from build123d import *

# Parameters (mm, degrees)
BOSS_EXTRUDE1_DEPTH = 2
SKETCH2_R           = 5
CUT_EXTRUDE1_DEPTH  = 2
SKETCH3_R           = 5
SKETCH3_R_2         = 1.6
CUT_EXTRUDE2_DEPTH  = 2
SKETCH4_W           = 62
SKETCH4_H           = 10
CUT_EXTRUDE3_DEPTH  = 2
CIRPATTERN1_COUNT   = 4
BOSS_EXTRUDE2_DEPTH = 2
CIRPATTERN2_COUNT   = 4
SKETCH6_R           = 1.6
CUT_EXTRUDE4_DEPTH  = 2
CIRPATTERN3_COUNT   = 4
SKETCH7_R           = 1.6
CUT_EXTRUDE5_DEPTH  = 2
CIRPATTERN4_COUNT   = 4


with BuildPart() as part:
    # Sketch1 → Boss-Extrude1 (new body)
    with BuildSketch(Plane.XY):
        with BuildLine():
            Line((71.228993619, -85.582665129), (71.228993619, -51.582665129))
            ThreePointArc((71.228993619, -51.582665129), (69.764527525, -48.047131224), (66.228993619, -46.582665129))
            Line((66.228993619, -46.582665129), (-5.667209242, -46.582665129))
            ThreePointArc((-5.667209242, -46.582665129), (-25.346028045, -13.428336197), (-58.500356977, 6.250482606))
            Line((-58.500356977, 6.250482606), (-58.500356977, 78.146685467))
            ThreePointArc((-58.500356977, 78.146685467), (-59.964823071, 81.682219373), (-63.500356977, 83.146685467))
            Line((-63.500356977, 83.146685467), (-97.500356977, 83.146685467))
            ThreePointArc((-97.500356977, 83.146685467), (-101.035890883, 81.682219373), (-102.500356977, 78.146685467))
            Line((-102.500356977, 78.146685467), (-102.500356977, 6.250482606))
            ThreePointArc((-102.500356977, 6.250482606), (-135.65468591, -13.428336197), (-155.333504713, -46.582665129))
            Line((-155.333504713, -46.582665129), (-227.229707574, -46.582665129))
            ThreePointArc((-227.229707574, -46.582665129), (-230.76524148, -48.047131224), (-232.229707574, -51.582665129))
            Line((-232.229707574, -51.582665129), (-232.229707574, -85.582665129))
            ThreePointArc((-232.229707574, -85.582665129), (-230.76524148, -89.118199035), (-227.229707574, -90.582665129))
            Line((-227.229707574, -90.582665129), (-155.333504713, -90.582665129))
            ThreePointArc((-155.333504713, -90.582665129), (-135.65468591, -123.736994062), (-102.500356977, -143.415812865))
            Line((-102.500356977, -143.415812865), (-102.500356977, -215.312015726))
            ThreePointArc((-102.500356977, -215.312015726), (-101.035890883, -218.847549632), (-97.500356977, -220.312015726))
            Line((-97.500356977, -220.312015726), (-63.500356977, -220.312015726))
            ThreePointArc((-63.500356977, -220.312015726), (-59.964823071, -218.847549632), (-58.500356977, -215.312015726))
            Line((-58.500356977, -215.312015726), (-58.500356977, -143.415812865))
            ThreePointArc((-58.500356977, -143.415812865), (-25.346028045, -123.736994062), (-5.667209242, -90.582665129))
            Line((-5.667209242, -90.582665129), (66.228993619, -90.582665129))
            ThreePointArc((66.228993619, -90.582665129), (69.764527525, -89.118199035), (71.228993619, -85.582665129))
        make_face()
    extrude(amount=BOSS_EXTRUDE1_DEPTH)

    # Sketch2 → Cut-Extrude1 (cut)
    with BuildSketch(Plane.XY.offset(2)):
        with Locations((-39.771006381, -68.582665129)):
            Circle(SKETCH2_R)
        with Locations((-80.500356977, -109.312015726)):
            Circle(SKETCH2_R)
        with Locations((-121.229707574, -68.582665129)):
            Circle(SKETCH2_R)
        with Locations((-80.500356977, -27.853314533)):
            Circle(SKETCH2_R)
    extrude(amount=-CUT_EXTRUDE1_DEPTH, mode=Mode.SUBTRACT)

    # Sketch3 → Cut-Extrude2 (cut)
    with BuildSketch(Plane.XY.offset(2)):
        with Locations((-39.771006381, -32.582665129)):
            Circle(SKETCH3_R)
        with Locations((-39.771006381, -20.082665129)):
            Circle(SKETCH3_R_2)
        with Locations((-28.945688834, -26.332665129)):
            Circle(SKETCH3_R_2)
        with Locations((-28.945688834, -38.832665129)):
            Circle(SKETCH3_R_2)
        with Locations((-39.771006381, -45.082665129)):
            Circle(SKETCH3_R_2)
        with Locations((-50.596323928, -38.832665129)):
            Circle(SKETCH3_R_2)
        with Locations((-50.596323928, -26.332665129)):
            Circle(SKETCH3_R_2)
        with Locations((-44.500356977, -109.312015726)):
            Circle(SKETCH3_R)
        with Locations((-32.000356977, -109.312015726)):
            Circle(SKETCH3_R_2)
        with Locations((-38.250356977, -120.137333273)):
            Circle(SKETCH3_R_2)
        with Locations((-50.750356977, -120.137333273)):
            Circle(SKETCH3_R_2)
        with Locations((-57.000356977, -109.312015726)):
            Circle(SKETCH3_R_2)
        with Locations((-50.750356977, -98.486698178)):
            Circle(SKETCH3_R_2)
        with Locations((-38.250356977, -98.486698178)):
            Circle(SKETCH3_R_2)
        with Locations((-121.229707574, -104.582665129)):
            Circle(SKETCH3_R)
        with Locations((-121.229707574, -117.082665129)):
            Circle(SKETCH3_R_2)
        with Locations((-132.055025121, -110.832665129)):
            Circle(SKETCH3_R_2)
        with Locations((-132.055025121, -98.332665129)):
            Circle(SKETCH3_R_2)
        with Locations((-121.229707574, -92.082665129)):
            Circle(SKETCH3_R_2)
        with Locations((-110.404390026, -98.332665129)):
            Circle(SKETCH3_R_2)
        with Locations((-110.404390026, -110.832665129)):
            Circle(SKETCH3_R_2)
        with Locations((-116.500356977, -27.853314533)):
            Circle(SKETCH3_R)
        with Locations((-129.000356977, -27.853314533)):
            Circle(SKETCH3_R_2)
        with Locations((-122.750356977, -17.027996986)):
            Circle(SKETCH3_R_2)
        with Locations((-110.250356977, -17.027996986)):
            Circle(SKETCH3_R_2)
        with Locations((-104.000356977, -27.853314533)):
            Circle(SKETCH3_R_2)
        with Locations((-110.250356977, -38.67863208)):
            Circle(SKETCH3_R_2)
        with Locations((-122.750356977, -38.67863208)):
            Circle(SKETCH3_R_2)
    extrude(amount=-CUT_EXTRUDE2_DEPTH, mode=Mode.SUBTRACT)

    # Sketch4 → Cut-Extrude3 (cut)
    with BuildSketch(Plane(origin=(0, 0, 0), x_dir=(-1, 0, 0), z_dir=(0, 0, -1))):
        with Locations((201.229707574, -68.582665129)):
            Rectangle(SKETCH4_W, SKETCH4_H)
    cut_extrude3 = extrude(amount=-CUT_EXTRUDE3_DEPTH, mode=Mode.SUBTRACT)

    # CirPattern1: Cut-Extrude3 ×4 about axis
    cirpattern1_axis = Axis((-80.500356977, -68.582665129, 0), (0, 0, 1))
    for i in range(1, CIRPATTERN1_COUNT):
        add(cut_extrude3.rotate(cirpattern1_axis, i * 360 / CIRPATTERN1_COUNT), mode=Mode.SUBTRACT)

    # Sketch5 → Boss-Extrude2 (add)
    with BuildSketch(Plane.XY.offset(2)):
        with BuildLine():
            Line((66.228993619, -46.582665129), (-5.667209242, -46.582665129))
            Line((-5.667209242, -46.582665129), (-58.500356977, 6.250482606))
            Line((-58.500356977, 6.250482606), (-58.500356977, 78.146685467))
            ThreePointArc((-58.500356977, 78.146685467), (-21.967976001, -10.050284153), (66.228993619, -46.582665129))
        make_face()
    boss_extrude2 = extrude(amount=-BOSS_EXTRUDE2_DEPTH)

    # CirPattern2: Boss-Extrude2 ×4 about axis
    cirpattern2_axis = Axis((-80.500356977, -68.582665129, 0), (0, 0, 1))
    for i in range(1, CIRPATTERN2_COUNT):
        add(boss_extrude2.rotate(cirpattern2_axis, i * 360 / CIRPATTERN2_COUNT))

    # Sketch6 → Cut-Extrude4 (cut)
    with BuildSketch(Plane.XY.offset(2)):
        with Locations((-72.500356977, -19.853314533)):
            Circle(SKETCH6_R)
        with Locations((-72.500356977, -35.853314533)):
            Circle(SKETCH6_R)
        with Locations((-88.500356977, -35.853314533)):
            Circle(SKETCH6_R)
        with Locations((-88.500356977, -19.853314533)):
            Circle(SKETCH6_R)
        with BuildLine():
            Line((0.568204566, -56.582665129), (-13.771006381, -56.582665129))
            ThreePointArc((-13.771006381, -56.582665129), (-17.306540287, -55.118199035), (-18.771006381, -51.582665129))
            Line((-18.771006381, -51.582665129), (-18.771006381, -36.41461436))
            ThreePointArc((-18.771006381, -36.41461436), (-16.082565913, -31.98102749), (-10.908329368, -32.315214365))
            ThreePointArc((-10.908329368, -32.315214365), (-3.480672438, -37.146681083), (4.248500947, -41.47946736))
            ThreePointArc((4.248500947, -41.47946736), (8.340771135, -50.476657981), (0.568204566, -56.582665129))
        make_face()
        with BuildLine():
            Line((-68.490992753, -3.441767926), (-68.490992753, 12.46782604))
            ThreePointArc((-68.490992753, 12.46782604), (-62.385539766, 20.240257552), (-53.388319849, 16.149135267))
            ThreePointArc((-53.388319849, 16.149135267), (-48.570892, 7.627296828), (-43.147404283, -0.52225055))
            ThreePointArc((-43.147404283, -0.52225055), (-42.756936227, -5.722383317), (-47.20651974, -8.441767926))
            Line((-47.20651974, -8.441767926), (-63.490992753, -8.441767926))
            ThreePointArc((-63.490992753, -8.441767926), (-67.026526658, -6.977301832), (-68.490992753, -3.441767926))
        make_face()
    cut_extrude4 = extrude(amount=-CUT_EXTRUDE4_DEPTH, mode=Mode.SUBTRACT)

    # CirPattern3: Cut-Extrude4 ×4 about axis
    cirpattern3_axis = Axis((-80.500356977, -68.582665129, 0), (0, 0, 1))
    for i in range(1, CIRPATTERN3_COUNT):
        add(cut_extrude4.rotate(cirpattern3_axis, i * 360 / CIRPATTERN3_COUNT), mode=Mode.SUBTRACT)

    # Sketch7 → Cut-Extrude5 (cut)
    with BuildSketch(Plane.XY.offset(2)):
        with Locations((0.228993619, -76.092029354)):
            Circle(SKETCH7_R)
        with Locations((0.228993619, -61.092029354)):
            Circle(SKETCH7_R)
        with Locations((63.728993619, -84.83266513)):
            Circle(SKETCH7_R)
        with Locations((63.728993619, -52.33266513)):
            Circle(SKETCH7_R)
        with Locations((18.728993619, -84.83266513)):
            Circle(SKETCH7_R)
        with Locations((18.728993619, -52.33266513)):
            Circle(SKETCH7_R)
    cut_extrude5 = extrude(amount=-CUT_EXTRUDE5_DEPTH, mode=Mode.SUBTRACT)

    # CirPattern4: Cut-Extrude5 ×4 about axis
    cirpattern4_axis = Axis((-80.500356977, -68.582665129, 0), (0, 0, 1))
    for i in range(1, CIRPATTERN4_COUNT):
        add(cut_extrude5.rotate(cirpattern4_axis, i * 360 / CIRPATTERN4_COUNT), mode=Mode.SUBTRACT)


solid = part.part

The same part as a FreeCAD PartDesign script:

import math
import FreeCAD as App
import Part
import Sketcher

V = App.Vector
Q = App.Units.Quantity


def add_polygon(sketch, points):
    """Adds a closed chain of lines whose ends are joined by coincident constraints."""
    first, n = sketch.GeometryCount, len(points)
    for a, b in zip(points, points[1:] + points[:1]):
        sketch.addGeometry(Part.LineSegment(App.Vector(*a, 0), App.Vector(*b, 0)), False)
    for i in range(n):
        sketch.addConstraint(Sketcher.Constraint("Coincident", first + i, 2, first + (i + 1) % n, 1))

doc = App.newDocument("Part")
params = doc.addObject("Spreadsheet::Sheet", "Params")
for row, (alias, value) in enumerate([
    ("sketch1_radius", "5 mm"),
    ("sketch1_radius2", "78 mm"),
    ("sketch1_width", "34 mm"),
    ("pad1_length", "2 mm"),
    ("sketch2_diameter", "10 mm"),
    ("pocket1_length", "2 mm"),
    ("sketch3_diameter", "10 mm"),
    ("sketch3_diameter2", "3.2 mm"),
    ("pocket2_length", "2 mm"),
    ("sketch4_width", "62 mm"),
    ("sketch4_height", "10 mm"),
    ("pocket3_length", "2 mm"),
    ("pad2_length", "2 mm"),
    ("sketch6_radius", "8 mm"),
    ("sketch6_radius2", "5 mm"),
    ("sketch6_diameter", "3.2 mm"),
    ("pocket4_length", "2 mm"),
    ("sketch7_diameter", "3.2 mm"),
    ("pocket5_length", "2 mm"),
], start=1):
    params.set(f"A{row}", alias)
    params.set(f"B{row}", "=" + value)
    params.setAlias(f"B{row}", alias)

body = doc.addObject("PartDesign::Body", "Body")

sketch1 = doc.addObject("Sketcher::SketchObject", "Sketch")
body.addObject(sketch1)
sketch1.AttachmentSupport = (doc.XY_Plane, [""])
sketch1.MapMode = "FlatFace"
sketch1.addGeometry(Part.LineSegment(V(71, -86, 0), V(71, -52, 0)), False)
sketch1.addGeometry(Part.ArcOfCircle(Part.Circle(V(66, -52, 0), V(0, 0, 1), 5), math.radians(0), math.radians(90)), False)
sketch1.addGeometry(Part.LineSegment(V(66, -47, 0), V(-6, -47, 0)), False)
sketch1.addGeometry(Part.ArcOfCircle(Part.Circle(V(-81, -69, 0), V(0, 0, 1), 78), math.radians(16), math.radians(74)), False)
sketch1.addGeometry(Part.LineSegment(V(-59, 6, 0), V(-59, 78, 0)), False)
sketch1.addGeometry(Part.ArcOfCircle(Part.Circle(V(-64, 78, 0), V(0, 0, 1), 5), math.radians(0), math.radians(90)), False)
sketch1.addGeometry(Part.LineSegment(V(-64, 83, 0), V(-98, 83, 0)), False)
sketch1.addGeometry(Part.ArcOfCircle(Part.Circle(V(-98, 78, 0), V(0, 0, 1), 5), math.radians(90), math.radians(180)), False)
sketch1.addGeometry(Part.LineSegment(V(-103, 78, 0), V(-103, 6, 0)), False)
sketch1.addGeometry(Part.ArcOfCircle(Part.Circle(V(-81, -69, 0), V(0, 0, 1), 78), math.radians(106), math.radians(164)), False)
sketch1.addGeometry(Part.LineSegment(V(-155, -47, 0), V(-227, -47, 0)), False)
sketch1.addGeometry(Part.ArcOfCircle(Part.Circle(V(-227, -52, 0), V(0, 0, 1), 5), math.radians(90), math.radians(180)), False)
sketch1.addGeometry(Part.LineSegment(V(-232, -52, 0), V(-232, -86, 0)), False)
sketch1.addGeometry(Part.ArcOfCircle(Part.Circle(V(-227, -86, 0), V(0, 0, 1), 5), math.radians(180), math.radians(270)), False)
sketch1.addGeometry(Part.LineSegment(V(-227, -91, 0), V(-155, -91, 0)), False)
sketch1.addGeometry(Part.ArcOfCircle(Part.Circle(V(-81, -69, 0), V(0, 0, 1), 78), math.radians(-164), math.radians(-106)), False)
sketch1.addGeometry(Part.LineSegment(V(-103, -143, 0), V(-103, -215, 0)), False)
sketch1.addGeometry(Part.ArcOfCircle(Part.Circle(V(-98, -215, 0), V(0, 0, 1), 5), math.radians(180), math.radians(270)), False)
sketch1.addGeometry(Part.LineSegment(V(-98, -220, 0), V(-64, -220, 0)), False)
sketch1.addGeometry(Part.ArcOfCircle(Part.Circle(V(-64, -215, 0), V(0, 0, 1), 5), math.radians(-90), math.radians(0)), False)
sketch1.addGeometry(Part.LineSegment(V(-59, -215, 0), V(-59, -143, 0)), False)
sketch1.addGeometry(Part.ArcOfCircle(Part.Circle(V(-81, -69, 0), V(0, 0, 1), 78), math.radians(-74), math.radians(-16)), False)
sketch1.addGeometry(Part.LineSegment(V(-6, -91, 0), V(66, -91, 0)), False)
sketch1.addGeometry(Part.ArcOfCircle(Part.Circle(V(66, -86, 0), V(0, 0, 1), 5), math.radians(-90), math.radians(0)), False)
sketch1.addConstraint(Sketcher.Constraint("Tangent", 0, 2, 1, 1))
sketch1.addConstraint(Sketcher.Constraint("Tangent", 1, 2, 2, 1))
sketch1.addConstraint(Sketcher.Constraint("Coincident", 2, 2, 3, 1))
sketch1.addConstraint(Sketcher.Constraint("Coincident", 3, 2, 4, 1))
sketch1.addConstraint(Sketcher.Constraint("Tangent", 4, 2, 5, 1))
sketch1.addConstraint(Sketcher.Constraint("Tangent", 5, 2, 6, 1))
sketch1.addConstraint(Sketcher.Constraint("Tangent", 6, 2, 7, 1))
sketch1.addConstraint(Sketcher.Constraint("Tangent", 7, 2, 8, 1))
sketch1.addConstraint(Sketcher.Constraint("Coincident", 8, 2, 9, 1))
sketch1.addConstraint(Sketcher.Constraint("Coincident", 9, 2, 10, 1))
sketch1.addConstraint(Sketcher.Constraint("Tangent", 10, 2, 11, 1))
sketch1.addConstraint(Sketcher.Constraint("Tangent", 11, 2, 12, 1))
sketch1.addConstraint(Sketcher.Constraint("Tangent", 12, 2, 13, 1))
sketch1.addConstraint(Sketcher.Constraint("Tangent", 13, 2, 14, 1))
sketch1.addConstraint(Sketcher.Constraint("Coincident", 14, 2, 15, 1))
sketch1.addConstraint(Sketcher.Constraint("Coincident", 15, 2, 16, 1))
sketch1.addConstraint(Sketcher.Constraint("Tangent", 16, 2, 17, 1))
sketch1.addConstraint(Sketcher.Constraint("Tangent", 17, 2, 18, 1))
sketch1.addConstraint(Sketcher.Constraint("Tangent", 18, 2, 19, 1))
sketch1.addConstraint(Sketcher.Constraint("Tangent", 19, 2, 20, 1))
sketch1.addConstraint(Sketcher.Constraint("Coincident", 20, 2, 21, 1))
sketch1.addConstraint(Sketcher.Constraint("Coincident", 21, 2, 22, 1))
sketch1.addConstraint(Sketcher.Constraint("Tangent", 22, 2, 23, 1))
sketch1.addConstraint(Sketcher.Constraint("Tangent", 23, 2, 0, 1))
sketch1.addConstraint(Sketcher.Constraint("Vertical", 0))
sketch1.addConstraint(Sketcher.Constraint("Horizontal", 2))
sketch1.addConstraint(Sketcher.Constraint("Vertical", 4))
sketch1.addConstraint(Sketcher.Constraint("Horizontal", 6))
sketch1.addConstraint(Sketcher.Constraint("Vertical", 8))
sketch1.addConstraint(Sketcher.Constraint("Horizontal", 10))
sketch1.addConstraint(Sketcher.Constraint("Vertical", 12))
sketch1.addConstraint(Sketcher.Constraint("Horizontal", 14))
sketch1.addConstraint(Sketcher.Constraint("Vertical", 16))
sketch1.addConstraint(Sketcher.Constraint("Horizontal", 18))
sketch1.addConstraint(Sketcher.Constraint("Vertical", 20))
sketch1.addConstraint(Sketcher.Constraint("Horizontal", 22))
sketch1.addConstraint(Sketcher.Constraint("Coincident", 9, 3, 3, 3))
sketch1.addConstraint(Sketcher.Constraint("Coincident", 15, 3, 3, 3))
sketch1.addConstraint(Sketcher.Constraint("Coincident", 21, 3, 3, 3))
sketch1.addConstraint(Sketcher.Constraint("Equal", 1, 5))
sketch1.addConstraint(Sketcher.Constraint("Equal", 5, 7))
sketch1.addConstraint(Sketcher.Constraint("Equal", 3, 9))
sketch1.addConstraint(Sketcher.Constraint("Equal", 7, 11))
sketch1.addConstraint(Sketcher.Constraint("Equal", 11, 13))
sketch1.addConstraint(Sketcher.Constraint("Equal", 9, 15))
sketch1.addConstraint(Sketcher.Constraint("Equal", 13, 17))
sketch1.addConstraint(Sketcher.Constraint("Equal", 17, 19))
sketch1.addConstraint(Sketcher.Constraint("Equal", 15, 21))
sketch1.addConstraint(Sketcher.Constraint("Equal", 19, 23))
sketch1.addConstraint(Sketcher.Constraint("Horizontal", 1, 3, 11, 3))
sketch1.addConstraint(Sketcher.Constraint("Horizontal", 13, 3, 23, 3))
sketch1.addConstraint(Sketcher.Constraint("Horizontal", 3, 2, 8, 2))
sketch1.addConstraint(Sketcher.Constraint("Horizontal", 15, 2, 20, 2))
sketch1.addConstraint(Sketcher.Constraint("Vertical", 7, 3, 17, 3))
sketch1.addConstraint(Sketcher.Constraint("Vertical", 9, 2, 14, 2))
sketch1.addConstraint(Sketcher.Constraint("Equal", 2, 10))
sketch1.addConstraint(Sketcher.Constraint("Equal", 18, 0))
sketch1.addConstraint(Sketcher.Constraint("Equal", 22, 4))
sketch1.addConstraint(Sketcher.Constraint("Equal", 8, 16))
sketch1.addConstraint(Sketcher.Constraint("Radius", 1, Q("5 mm")))
sketch1.addConstraint(Sketcher.Constraint("Radius", 3, Q("78 mm")))
sketch1.addConstraint(Sketcher.Constraint("DistanceX", 6, 2, 6, 1, Q("34 mm")))
sketch1.addConstraint(Sketcher.Constraint("DistanceX", 11, 3, 1, 3, Q("293.458701 mm")))
sketch1.addConstraint(Sketcher.Constraint("DistanceX", 2, 2, -1, 1, Q("5.667209 mm")))
sketch1.addConstraint(Sketcher.Constraint("DistanceY", 1, 3, -1, 1, Q("51.582665 mm")))
sketch1.setExpression("Constraints[59]", "Params.sketch1_radius")
sketch1.setExpression("Constraints[60]", "Params.sketch1_radius2")
sketch1.setExpression("Constraints[61]", "Params.sketch1_width")
pad1 = doc.addObject("PartDesign::Pad", "Pad")
body.addObject(pad1)
pad1.Profile = sketch1
pad1.setExpression("Length", "Params.pad1_length")

sketch2 = doc.addObject("Sketcher::SketchObject", "Sketch001")
body.addObject(sketch2)
sketch2.AttachmentSupport = (doc.XY_Plane, [""])
sketch2.MapMode = "FlatFace"
sketch2.AttachmentOffset = App.Placement(V(0, 0, 2), App.Rotation())
sketch2.addGeometry(Part.Circle(V(-40, -69, 0), V(0, 0, 1), 5), False)
sketch2.addGeometry(Part.Circle(V(-81, -109, 0), V(0, 0, 1), 5), False)
sketch2.addGeometry(Part.Circle(V(-121, -69, 0), V(0, 0, 1), 5), False)
sketch2.addGeometry(Part.Circle(V(-81, -28, 0), V(0, 0, 1), 5), False)
sketch2.addConstraint(Sketcher.Constraint("Equal", 0, 1))
sketch2.addConstraint(Sketcher.Constraint("Equal", 1, 2))
sketch2.addConstraint(Sketcher.Constraint("Equal", 2, 3))
sketch2.addConstraint(Sketcher.Constraint("Horizontal", 0, 3, 2, 3))
sketch2.addConstraint(Sketcher.Constraint("Vertical", 1, 3, 3, 3))
sketch2.addConstraint(Sketcher.Constraint("Diameter", 0, Q("10 mm")))
sketch2.addConstraint(Sketcher.Constraint("DistanceX", 2, 3, 0, 3, Q("81.458701 mm")))
sketch2.addConstraint(Sketcher.Constraint("DistanceY", 1, 3, 3, 3, Q("81.458701 mm")))
sketch2.addConstraint(Sketcher.Constraint("DistanceX", 1, 3, 0, 3, Q("40.729351 mm")))
sketch2.addConstraint(Sketcher.Constraint("DistanceY", 1, 3, 0, 3, Q("40.729351 mm")))
sketch2.addConstraint(Sketcher.Constraint("DistanceX", 0, 3, -1, 1, Q("39.771006 mm")))
sketch2.addConstraint(Sketcher.Constraint("DistanceY", 0, 3, -1, 1, Q("68.582665 mm")))
sketch2.setExpression("Constraints[5]", "Params.sketch2_diameter")
pocket1 = doc.addObject("PartDesign::Pocket", "Pocket")
body.addObject(pocket1)
pocket1.Profile = sketch2
pocket1.setExpression("Length", "Params.pocket1_length")

sketch3 = doc.addObject("Sketcher::SketchObject", "Sketch002")
body.addObject(sketch3)
sketch3.AttachmentSupport = (doc.XY_Plane, [""])
sketch3.MapMode = "FlatFace"
sketch3.AttachmentOffset = App.Placement(V(0, 0, 2), App.Rotation())
sketch3.addGeometry(Part.Circle(V(-39.8, -32.6, 0), V(0, 0, 1), 5), False)
sketch3.addGeometry(Part.Circle(V(-39.8, -20.1, 0), V(0, 0, 1), 1.6), False)
sketch3.addGeometry(Part.Circle(V(-28.9, -26.3, 0), V(0, 0, 1), 1.6), False)
sketch3.addGeometry(Part.Circle(V(-28.9, -38.8, 0), V(0, 0, 1), 1.6), False)
sketch3.addGeometry(Part.Circle(V(-39.8, -45.1, 0), V(0, 0, 1), 1.6), False)
sketch3.addGeometry(Part.Circle(V(-50.6, -38.8, 0), V(0, 0, 1), 1.6), False)
sketch3.addGeometry(Part.Circle(V(-50.6, -26.3, 0), V(0, 0, 1), 1.6), False)
sketch3.addGeometry(Part.Circle(V(-44.5, -109.3, 0), V(0, 0, 1), 5), False)
sketch3.addGeometry(Part.Circle(V(-32, -109.3, 0), V(0, 0, 1), 1.6), False)
sketch3.addGeometry(Part.Circle(V(-38.3, -120.1, 0), V(0, 0, 1), 1.6), False)
sketch3.addGeometry(Part.Circle(V(-50.8, -120.1, 0), V(0, 0, 1), 1.6), False)
sketch3.addGeometry(Part.Circle(V(-57, -109.3, 0), V(0, 0, 1), 1.6), False)
sketch3.addGeometry(Part.Circle(V(-50.8, -98.5, 0), V(0, 0, 1), 1.6), False)
sketch3.addGeometry(Part.Circle(V(-38.3, -98.5, 0), V(0, 0, 1), 1.6), False)
sketch3.addGeometry(Part.Circle(V(-121.2, -104.6, 0), V(0, 0, 1), 5), False)
sketch3.addGeometry(Part.Circle(V(-121.2, -117.1, 0), V(0, 0, 1), 1.6), False)
sketch3.addGeometry(Part.Circle(V(-132.1, -110.8, 0), V(0, 0, 1), 1.6), False)
sketch3.addGeometry(Part.Circle(V(-132.1, -98.3, 0), V(0, 0, 1), 1.6), False)
sketch3.addGeometry(Part.Circle(V(-121.2, -92.1, 0), V(0, 0, 1), 1.6), False)
sketch3.addGeometry(Part.Circle(V(-110.4, -98.3, 0), V(0, 0, 1), 1.6), False)
sketch3.addGeometry(Part.Circle(V(-110.4, -110.8, 0), V(0, 0, 1), 1.6), False)
sketch3.addGeometry(Part.Circle(V(-116.5, -27.9, 0), V(0, 0, 1), 5), False)
sketch3.addGeometry(Part.Circle(V(-129, -27.9, 0), V(0, 0, 1), 1.6), False)
sketch3.addGeometry(Part.Circle(V(-122.8, -17, 0), V(0, 0, 1), 1.6), False)
sketch3.addGeometry(Part.Circle(V(-110.3, -17, 0), V(0, 0, 1), 1.6), False)
sketch3.addGeometry(Part.Circle(V(-104, -27.9, 0), V(0, 0, 1), 1.6), False)
sketch3.addGeometry(Part.Circle(V(-110.3, -38.7, 0), V(0, 0, 1), 1.6), False)
sketch3.addGeometry(Part.Circle(V(-122.8, -38.7, 0), V(0, 0, 1), 1.6), False)
sketch3.addConstraint(Sketcher.Constraint("Equal", 1, 2))
sketch3.addConstraint(Sketcher.Constraint("Equal", 2, 3))
sketch3.addConstraint(Sketcher.Constraint("Equal", 3, 4))
sketch3.addConstraint(Sketcher.Constraint("Equal", 4, 5))
sketch3.addConstraint(Sketcher.Constraint("Equal", 5, 6))
sketch3.addConstraint(Sketcher.Constraint("Equal", 0, 7))
sketch3.addConstraint(Sketcher.Constraint("Equal", 6, 8))
sketch3.addConstraint(Sketcher.Constraint("Equal", 8, 9))
sketch3.addConstraint(Sketcher.Constraint("Equal", 9, 10))
sketch3.addConstraint(Sketcher.Constraint("Equal", 10, 11))
sketch3.addConstraint(Sketcher.Constraint("Equal", 11, 12))
sketch3.addConstraint(Sketcher.Constraint("Equal", 12, 13))
sketch3.addConstraint(Sketcher.Constraint("Equal", 7, 14))
sketch3.addConstraint(Sketcher.Constraint("Equal", 13, 15))
sketch3.addConstraint(Sketcher.Constraint("Equal", 15, 16))
sketch3.addConstraint(Sketcher.Constraint("Equal", 16, 17))
sketch3.addConstraint(Sketcher.Constraint("Equal", 17, 18))
sketch3.addConstraint(Sketcher.Constraint("Equal", 18, 19))
sketch3.addConstraint(Sketcher.Constraint("Equal", 19, 20))
sketch3.addConstraint(Sketcher.Constraint("Equal", 14, 21))
sketch3.addConstraint(Sketcher.Constraint("Equal", 20, 22))
sketch3.addConstraint(Sketcher.Constraint("Equal", 22, 23))
sketch3.addConstraint(Sketcher.Constraint("Equal", 23, 24))
sketch3.addConstraint(Sketcher.Constraint("Equal", 24, 25))
sketch3.addConstraint(Sketcher.Constraint("Equal", 25, 26))
sketch3.addConstraint(Sketcher.Constraint("Equal", 26, 27))
sketch3.addConstraint(Sketcher.Constraint("Horizontal", 3, 3, 5, 3))
sketch3.addConstraint(Sketcher.Constraint("Horizontal", 2, 3, 6, 3))
sketch3.addConstraint(Sketcher.Constraint("Horizontal", 7, 3, 8, 3))
sketch3.addConstraint(Sketcher.Constraint("Horizontal", 9, 3, 10, 3))
sketch3.addConstraint(Sketcher.Constraint("Horizontal", 8, 3, 11, 3))
sketch3.addConstraint(Sketcher.Constraint("Horizontal", 12, 3, 13, 3))
sketch3.addConstraint(Sketcher.Constraint("Horizontal", 17, 3, 19, 3))
sketch3.addConstraint(Sketcher.Constraint("Horizontal", 16, 3, 20, 3))
sketch3.addConstraint(Sketcher.Constraint("Horizontal", 21, 3, 22, 3))
sketch3.addConstraint(Sketcher.Constraint("Horizontal", 23, 3, 24, 3))
sketch3.addConstraint(Sketcher.Constraint("Horizontal", 22, 3, 25, 3))
sketch3.addConstraint(Sketcher.Constraint("Horizontal", 26, 3, 27, 3))
sketch3.addConstraint(Sketcher.Constraint("Vertical", 0, 3, 1, 3))
sketch3.addConstraint(Sketcher.Constraint("Vertical", 2, 3, 3, 3))
sketch3.addConstraint(Sketcher.Constraint("Vertical", 1, 3, 4, 3))
sketch3.addConstraint(Sketcher.Constraint("Vertical", 5, 3, 6, 3))
sketch3.addConstraint(Sketcher.Constraint("Vertical", 10, 3, 12, 3))
sketch3.addConstraint(Sketcher.Constraint("Vertical", 9, 3, 13, 3))
sketch3.addConstraint(Sketcher.Constraint("Vertical", 14, 3, 15, 3))
sketch3.addConstraint(Sketcher.Constraint("Vertical", 16, 3, 17, 3))
sketch3.addConstraint(Sketcher.Constraint("Vertical", 15, 3, 18, 3))
sketch3.addConstraint(Sketcher.Constraint("Vertical", 19, 3, 20, 3))
sketch3.addConstraint(Sketcher.Constraint("Vertical", 24, 3, 26, 3))
sketch3.addConstraint(Sketcher.Constraint("Vertical", 23, 3, 27, 3))
sketch3.addConstraint(Sketcher.Constraint("Diameter", 0, Q("10 mm")))
sketch3.addConstraint(Sketcher.Constraint("Diameter", 1, Q("3.2 mm")))
sketch3.addConstraint(Sketcher.Constraint("DistanceY", 4, 3, 1, 3, Q("25 mm")))
sketch3.addConstraint(Sketcher.Constraint("DistanceX", 11, 3, 8, 3, Q("25 mm")))
sketch3.addConstraint(Sketcher.Constraint("DistanceY", 15, 3, 18, 3, Q("25 mm")))
sketch3.addConstraint(Sketcher.Constraint("DistanceX", 22, 3, 25, 3, Q("25 mm")))
sketch3.addConstraint(Sketcher.Constraint("DistanceY", 0, 3, 1, 3, Q("12.5 mm")))
sketch3.addConstraint(Sketcher.Constraint("DistanceY", 3, 3, 2, 3, Q("12.5 mm")))
sketch3.addConstraint(Sketcher.Constraint("DistanceX", 7, 3, 8, 3, Q("12.5 mm")))
sketch3.addConstraint(Sketcher.Constraint("DistanceX", 10, 3, 9, 3, Q("12.5 mm")))
sketch3.addConstraint(Sketcher.Constraint("DistanceY", 15, 3, 14, 3, Q("12.5 mm")))
sketch3.addConstraint(Sketcher.Constraint("DistanceY", 16, 3, 17, 3, Q("12.5 mm")))
sketch3.addConstraint(Sketcher.Constraint("DistanceX", 22, 3, 21, 3, Q("12.5 mm")))
sketch3.addConstraint(Sketcher.Constraint("DistanceX", 23, 3, 24, 3, Q("12.5 mm")))
sketch3.addConstraint(Sketcher.Constraint("DistanceY", 0, 3, 2, 3, Q("6.25 mm")))
sketch3.addConstraint(Sketcher.Constraint("DistanceX", 7, 3, 9, 3, Q("6.25 mm")))
sketch3.addConstraint(Sketcher.Constraint("DistanceY", 16, 3, 14, 3, Q("6.25 mm")))
sketch3.addConstraint(Sketcher.Constraint("DistanceX", 23, 3, 21, 3, Q("6.25 mm")))
sketch3.addConstraint(Sketcher.Constraint("DistanceY", 12, 3, -1, 1, Q("98.486698 mm")))
sketch3.addConstraint(Sketcher.Constraint("DistanceX", 2, 3, -1, 1, Q("28.945689 mm")))
sketch3.addConstraint(Sketcher.Constraint("DistanceX", 19, 3, -1, 1, Q("110.40439 mm")))
sketch3.addConstraint(Sketcher.Constraint("DistanceX", 7, 3, 4, 3, Q("4.729351 mm")))
sketch3.addConstraint(Sketcher.Constraint("DistanceY", 7, 3, 4, 3, Q("64.229351 mm")))
sketch3.addConstraint(Sketcher.Constraint("DistanceX", 7, 3, 3, 3, Q("15.554668 mm")))
sketch3.addConstraint(Sketcher.Constraint("DistanceY", 9, 3, 4, 3, Q("75.054668 mm")))
sketch3.addConstraint(Sketcher.Constraint("DistanceX", 14, 3, 11, 3, Q("64.229351 mm")))
sketch3.addConstraint(Sketcher.Constraint("DistanceY", 11, 3, 14, 3, Q("4.729351 mm")))
sketch3.addConstraint(Sketcher.Constraint("DistanceX", 16, 3, 11, 3, Q("75.054668 mm")))
sketch3.addConstraint(Sketcher.Constraint("DistanceX", 18, 3, 21, 3, Q("4.729351 mm")))
sketch3.addConstraint(Sketcher.Constraint("DistanceY", 18, 3, 21, 3, Q("64.229351 mm")))
sketch3.addConstraint(Sketcher.Constraint("DistanceY", 6, 3, 23, 3, Q("9.304668 mm")))
sketch3.addConstraint(Sketcher.Constraint("DistanceY", 0, 3, -1, 1, Q("32.582665 mm")))
sketch3.addConstraint(Sketcher.Constraint("DistanceX", 5, 3, -1, 1, Q("50.596324 mm")))
sketch3.addConstraint(Sketcher.Constraint("DistanceY", 26, 3, -1, 1, Q("38.678632 mm")))
sketch3.setExpression("Constraints[50]", "Params.sketch3_diameter")
sketch3.setExpression("Constraints[51]", "Params.sketch3_diameter2")
pocket2 = doc.addObject("PartDesign::Pocket", "Pocket001")
body.addObject(pocket2)
pocket2.Profile = sketch3
pocket2.setExpression("Length", "Params.pocket2_length")

sketch4 = doc.addObject("Sketcher::SketchObject", "Sketch003")
body.addObject(sketch4)
sketch4.AttachmentSupport = (doc.XY_Plane, [""])
sketch4.MapMode = "FlatFace"
add_polygon(sketch4, [(-170, -64), (-170, -74), (-232, -74), (-232, -64)])
sketch4.addConstraint(Sketcher.Constraint("Vertical", 0))
sketch4.addConstraint(Sketcher.Constraint("Horizontal", 1))
sketch4.addConstraint(Sketcher.Constraint("Vertical", 2))
sketch4.addConstraint(Sketcher.Constraint("Horizontal", 3))
sketch4.addConstraint(Sketcher.Constraint("DistanceX", 1, 2, 1, 1, Q("62 mm")))
sketch4.addConstraint(Sketcher.Constraint("DistanceY", 0, 2, 0, 1, Q("10 mm")))
sketch4.addConstraint(Sketcher.Constraint("DistanceX", 0, 2, -1, 1, Q("170.229708 mm")))
sketch4.addConstraint(Sketcher.Constraint("DistanceY", 0, 2, -1, 1, Q("73.582665 mm")))
sketch4.setExpression("Constraints[8]", "Params.sketch4_width")
sketch4.setExpression("Constraints[9]", "Params.sketch4_height")
pocket3 = doc.addObject("PartDesign::Pocket", "Pocket002")
body.addObject(pocket3)
pocket3.Profile = sketch4
pocket3.setExpression("Length", "Params.pocket3_length")
pocket3.Reversed = True
doc.recompute()

datumline = doc.addObject("PartDesign::Line", "DatumLine")
body.addObject(datumline)
datumline.Placement = App.Placement(V(-80.500357, -68.582665, 0), App.Rotation(V(0, 0, 1), V(0, 0, 1)))
polarpattern = doc.addObject("PartDesign::PolarPattern", "PolarPattern")
body.addObject(polarpattern)
polarpattern.Originals = [pocket3]
polarpattern.Axis = (datumline, [""])
polarpattern.Angle = 360
polarpattern.Occurrences = 4
body.Tip = polarpattern

sketch5 = doc.addObject("Sketcher::SketchObject", "Sketch004")
body.addObject(sketch5)
sketch5.AttachmentSupport = (doc.XY_Plane, [""])
sketch5.MapMode = "FlatFace"
sketch5.AttachmentOffset = App.Placement(V(0, 0, 2), App.Rotation())
sketch5.addGeometry(Part.LineSegment(V(-6, -47, 0), V(66, -47, 0)), False)
sketch5.addGeometry(Part.ArcOfCircle(Part.Circle(V(66, 78, 0), V(0, 0, 1), 125), math.radians(180), math.radians(270)), False)
sketch5.addGeometry(Part.LineSegment(V(-59, 78, 0), V(-59, 6, 0)), False)
sketch5.addGeometry(Part.LineSegment(V(-59, 6, 0), V(-6, -47, 0)), False)
sketch5.addConstraint(Sketcher.Constraint("Tangent", 0, 2, 1, 2))
sketch5.addConstraint(Sketcher.Constraint("Tangent", 1, 1, 2, 1))
sketch5.addConstraint(Sketcher.Constraint("Coincident", 2, 2, 3, 1))
sketch5.addConstraint(Sketcher.Constraint("Coincident", 3, 2, 0, 1))
sketch5.addConstraint(Sketcher.Constraint("Horizontal", 0))
sketch5.addConstraint(Sketcher.Constraint("Vertical", 2))
sketch5.addConstraint(Sketcher.Constraint("Equal", 0, 2))
sketch5.addConstraint(Sketcher.Constraint("Radius", 1, Q("124.729351 mm")))
sketch5.addConstraint(Sketcher.Constraint("DistanceX", 0, 1, 0, 2, Q("71.896203 mm")))
sketch5.addConstraint(Sketcher.Constraint("DistanceX", 3, 2, -1, 1, Q("5.667209 mm")))
sketch5.addConstraint(Sketcher.Constraint("DistanceY", -1, 1, 1, 3, Q("78.146685 mm")))
pad2 = doc.addObject("PartDesign::Pad", "Pad001")
body.addObject(pad2)
pad2.Profile = sketch5
pad2.setExpression("Length", "Params.pad2_length")
pad2.Reversed = True
doc.recompute()

datumline2 = doc.addObject("PartDesign::Line", "DatumLine001")
body.addObject(datumline2)
datumline2.Placement = App.Placement(V(-80.500357, -68.582665, 0), App.Rotation(V(0, 0, 1), V(0, 0, 1)))
polarpattern2 = doc.addObject("PartDesign::PolarPattern", "PolarPattern001")
body.addObject(polarpattern2)
polarpattern2.Originals = [pad2]
polarpattern2.Axis = (datumline2, [""])
polarpattern2.Angle = 360
polarpattern2.Occurrences = 4
body.Tip = polarpattern2

sketch6 = doc.addObject("Sketcher::SketchObject", "Sketch005")
body.addObject(sketch6)
sketch6.AttachmentSupport = (doc.XY_Plane, [""])
sketch6.MapMode = "FlatFace"
sketch6.AttachmentOffset = App.Placement(V(0, 0, 2), App.Rotation())
sketch6.addGeometry(Part.Circle(V(-72.5, -19.9, 0), V(0, 0, 1), 1.6), False)
sketch6.addGeometry(Part.Circle(V(-72.5, -35.9, 0), V(0, 0, 1), 1.6), False)
sketch6.addGeometry(Part.Circle(V(-88.5, -35.9, 0), V(0, 0, 1), 1.6), False)
sketch6.addGeometry(Part.Circle(V(-88.5, -19.9, 0), V(0, 0, 1), 1.6), False)
sketch6.addGeometry(Part.LineSegment(V(-13.8, -56.6, 0), V(0.6, -56.6, 0)), False)
sketch6.addGeometry(Part.ArcOfCircle(Part.Circle(V(0.6, -48.6, 0), V(0, 0, 1), 8), math.radians(-90), math.radians(63)), False)
sketch6.addGeometry(Part.ArcOfCircle(Part.Circle(V(66.2, 78.1, 0), V(0, 0, 1), 134.7), math.radians(-124.93), math.radians(-117.39)), False)
sketch6.addGeometry(Part.ArcOfCircle(Part.Circle(V(-13.8, -36.4, 0), V(0, 0, 1), 5), math.radians(55), math.radians(180)), False)
sketch6.addGeometry(Part.LineSegment(V(-18.8, -36.4, 0), V(-18.8, -51.6, 0)), False)
sketch6.addGeometry(Part.ArcOfCircle(Part.Circle(V(-13.8, -51.6, 0), V(0, 0, 1), 5), math.radians(180), math.radians(270)), False)
sketch6.addGeometry(Part.LineSegment(V(-68.5, 12.5, 0), V(-68.5, -3.4, 0)), False)
sketch6.addGeometry(Part.ArcOfCircle(Part.Circle(V(-63.5, -3.4, 0), V(0, 0, 1), 5), math.radians(-180), math.radians(-90)), False)
sketch6.addGeometry(Part.LineSegment(V(-63.5, -8.4, 0), V(-47.2, -8.4, 0)), False)
sketch6.addGeometry(Part.ArcOfCircle(Part.Circle(V(-47.2, -3.4, 0), V(0, 0, 1), 5), math.radians(-90), math.radians(36)), False)
sketch6.addGeometry(Part.ArcOfCircle(Part.Circle(V(66.2, 78.1, 0), V(0, 0, 1), 134.7), math.radians(-152.6), math.radians(-144.27)), False)
sketch6.addGeometry(Part.ArcOfCircle(Part.Circle(V(-60.5, 12.5, 0), V(0, 0, 1), 8), math.radians(27), math.radians(180)), False)
sketch6.addConstraint(Sketcher.Constraint("Tangent", 4, 2, 5, 1))
sketch6.addConstraint(Sketcher.Constraint("Tangent", 5, 2, 6, 2))
sketch6.addConstraint(Sketcher.Constraint("Tangent", 6, 1, 7, 1))
sketch6.addConstraint(Sketcher.Constraint("Tangent", 7, 2, 8, 1))
sketch6.addConstraint(Sketcher.Constraint("Tangent", 8, 2, 9, 1))
sketch6.addConstraint(Sketcher.Constraint("Tangent", 9, 2, 4, 1))
sketch6.addConstraint(Sketcher.Constraint("Tangent", 10, 2, 11, 1))
sketch6.addConstraint(Sketcher.Constraint("Tangent", 11, 2, 12, 1))
sketch6.addConstraint(Sketcher.Constraint("Tangent", 12, 2, 13, 1))
sketch6.addConstraint(Sketcher.Constraint("Tangent", 13, 2, 14, 2))
sketch6.addConstraint(Sketcher.Constraint("Tangent", 14, 1, 15, 1))
sketch6.addConstraint(Sketcher.Constraint("Tangent", 15, 2, 10, 1))
sketch6.addConstraint(Sketcher.Constraint("Horizontal", 4))
sketch6.addConstraint(Sketcher.Constraint("Vertical", 8))
sketch6.addConstraint(Sketcher.Constraint("Vertical", 10))
sketch6.addConstraint(Sketcher.Constraint("Horizontal", 12))
sketch6.addConstraint(Sketcher.Constraint("Coincident", 14, 3, 6, 3))
sketch6.addConstraint(Sketcher.Constraint("Equal", 0, 1))
sketch6.addConstraint(Sketcher.Constraint("Equal", 1, 2))
sketch6.addConstraint(Sketcher.Constraint("Equal", 2, 3))
sketch6.addConstraint(Sketcher.Constraint("Equal", 7, 9))
sketch6.addConstraint(Sketcher.Constraint("Equal", 9, 11))
sketch6.addConstraint(Sketcher.Constraint("Equal", 11, 13))
sketch6.addConstraint(Sketcher.Constraint("Equal", 6, 14))
sketch6.addConstraint(Sketcher.Constraint("Equal", 5, 15))
sketch6.addConstraint(Sketcher.Constraint("Horizontal", 1, 3, 2, 3))
sketch6.addConstraint(Sketcher.Constraint("Horizontal", 0, 3, 3, 3))
sketch6.addConstraint(Sketcher.Constraint("Vertical", 0, 3, 1, 3))
sketch6.addConstraint(Sketcher.Constraint("Vertical", 2, 3, 3, 3))
sketch6.addConstraint(Sketcher.Constraint("Radius", 5, Q("8 mm")))
sketch6.addConstraint(Sketcher.Constraint("Radius", 7, Q("5 mm")))
sketch6.addConstraint(Sketcher.Constraint("Diameter", 0, Q("3.2 mm")))
sketch6.addConstraint(Sketcher.Constraint("DistanceY", 1, 3, 0, 3, Q("16 mm")))
sketch6.addConstraint(Sketcher.Constraint("DistanceX", 2, 3, 1, 3, Q("16 mm")))
sketch6.addConstraint(Sketcher.Constraint("DistanceY", 0, 3, 6, 3, Q("98 mm")))
sketch6.addConstraint(Sketcher.Constraint("DistanceX", 7, 3, 14, 3, Q("80 mm")))
sketch6.addConstraint(Sketcher.Constraint("Radius", 6, Q("134.72935 mm")))
sketch6.addConstraint(Sketcher.Constraint("DistanceX", 4, 1, 4, 2, Q("14.339211 mm")))
sketch6.addConstraint(Sketcher.Constraint("DistanceX", -1, 1, 5, 2, Q("4.248501 mm")))
sketch6.addConstraint(Sketcher.Constraint("DistanceY", 5, 2, 13, 3, Q("38.037699 mm")))
sketch6.addConstraint(Sketcher.Constraint("DistanceX", 14, 1, 13, 3, Q("6.1818 mm")))
sketch6.addConstraint(Sketcher.Constraint("DistanceY", 13, 2, -1, 1, Q("0.522251 mm")))
sketch6.addConstraint(Sketcher.Constraint("DistanceX", 1, 3, 5, 3, Q("73.068562 mm")))
sketch6.setExpression("Constraints[29]", "Params.sketch6_radius")
sketch6.setExpression("Constraints[30]", "Params.sketch6_radius2")
sketch6.setExpression("Constraints[31]", "Params.sketch6_diameter")
pocket4 = doc.addObject("PartDesign::Pocket", "Pocket003")
body.addObject(pocket4)
pocket4.Profile = sketch6
pocket4.setExpression("Length", "Params.pocket4_length")
doc.recompute()

datumline3 = doc.addObject("PartDesign::Line", "DatumLine002")
body.addObject(datumline3)
datumline3.Placement = App.Placement(V(-80.500357, -68.582665, 0), App.Rotation(V(0, 0, 1), V(0, 0, 1)))
polarpattern3 = doc.addObject("PartDesign::PolarPattern", "PolarPattern002")
body.addObject(polarpattern3)
polarpattern3.Originals = [pocket4]
polarpattern3.Axis = (datumline3, [""])
polarpattern3.Angle = 360
polarpattern3.Occurrences = 4
body.Tip = polarpattern3

sketch7 = doc.addObject("Sketcher::SketchObject", "Sketch006")
body.addObject(sketch7)
sketch7.AttachmentSupport = (doc.XY_Plane, [""])
sketch7.MapMode = "FlatFace"
sketch7.AttachmentOffset = App.Placement(V(0, 0, 2), App.Rotation())
sketch7.addGeometry(Part.Circle(V(0.2, -76.1, 0), V(0, 0, 1), 1.6), False)
sketch7.addGeometry(Part.Circle(V(0.2, -61.1, 0), V(0, 0, 1), 1.6), False)
sketch7.addGeometry(Part.Circle(V(63.7, -84.8, 0), V(0, 0, 1), 1.6), False)
sketch7.addGeometry(Part.Circle(V(63.7, -52.3, 0), V(0, 0, 1), 1.6), False)
sketch7.addGeometry(Part.Circle(V(18.7, -84.8, 0), V(0, 0, 1), 1.6), False)
sketch7.addGeometry(Part.Circle(V(18.7, -52.3, 0), V(0, 0, 1), 1.6), False)
sketch7.addConstraint(Sketcher.Constraint("Equal", 0, 1))
sketch7.addConstraint(Sketcher.Constraint("Equal", 1, 2))
sketch7.addConstraint(Sketcher.Constraint("Equal", 2, 3))
sketch7.addConstraint(Sketcher.Constraint("Equal", 3, 4))
sketch7.addConstraint(Sketcher.Constraint("Equal", 4, 5))
sketch7.addConstraint(Sketcher.Constraint("Horizontal", 2, 3, 4, 3))
sketch7.addConstraint(Sketcher.Constraint("Horizontal", 3, 3, 5, 3))
sketch7.addConstraint(Sketcher.Constraint("Vertical", 0, 3, 1, 3))
sketch7.addConstraint(Sketcher.Constraint("Vertical", 2, 3, 3, 3))
sketch7.addConstraint(Sketcher.Constraint("Vertical", 4, 3, 5, 3))
sketch7.addConstraint(Sketcher.Constraint("Diameter", 0, Q("3.2 mm")))
sketch7.addConstraint(Sketcher.Constraint("DistanceY", 0, 3, 1, 3, Q("15 mm")))
sketch7.addConstraint(Sketcher.Constraint("DistanceX", 4, 3, 2, 3, Q("45 mm")))
sketch7.addConstraint(Sketcher.Constraint("DistanceX", 0, 3, 2, 3, Q("63.5 mm")))
sketch7.addConstraint(Sketcher.Constraint("DistanceY", 2, 3, 3, 3, Q("32.5 mm")))
sketch7.addConstraint(Sketcher.Constraint("DistanceY", 0, 3, -1, 1, Q("76.092029 mm")))
sketch7.addConstraint(Sketcher.Constraint("DistanceX", -1, 1, 0, 3, Q("0.228994 mm")))
sketch7.addConstraint(Sketcher.Constraint("DistanceY", 2, 3, -1, 1, Q("84.832665 mm")))
sketch7.setExpression("Constraints[10]", "Params.sketch7_diameter")
pocket5 = doc.addObject("PartDesign::Pocket", "Pocket004")
body.addObject(pocket5)
pocket5.Profile = sketch7
pocket5.setExpression("Length", "Params.pocket5_length")
doc.recompute()

datumline4 = doc.addObject("PartDesign::Line", "DatumLine003")
body.addObject(datumline4)
datumline4.Placement = App.Placement(V(-80.500357, -68.582665, 0), App.Rotation(V(0, 0, 1), V(0, 0, 1)))
polarpattern4 = doc.addObject("PartDesign::PolarPattern", "PolarPattern003")
body.addObject(polarpattern4)
polarpattern4.Originals = [pocket5]
polarpattern4.Axis = (datumline4, [""])
polarpattern4.Angle = 360
polarpattern4.Occurrences = 4
body.Tip = polarpattern4

doc.recompute()
